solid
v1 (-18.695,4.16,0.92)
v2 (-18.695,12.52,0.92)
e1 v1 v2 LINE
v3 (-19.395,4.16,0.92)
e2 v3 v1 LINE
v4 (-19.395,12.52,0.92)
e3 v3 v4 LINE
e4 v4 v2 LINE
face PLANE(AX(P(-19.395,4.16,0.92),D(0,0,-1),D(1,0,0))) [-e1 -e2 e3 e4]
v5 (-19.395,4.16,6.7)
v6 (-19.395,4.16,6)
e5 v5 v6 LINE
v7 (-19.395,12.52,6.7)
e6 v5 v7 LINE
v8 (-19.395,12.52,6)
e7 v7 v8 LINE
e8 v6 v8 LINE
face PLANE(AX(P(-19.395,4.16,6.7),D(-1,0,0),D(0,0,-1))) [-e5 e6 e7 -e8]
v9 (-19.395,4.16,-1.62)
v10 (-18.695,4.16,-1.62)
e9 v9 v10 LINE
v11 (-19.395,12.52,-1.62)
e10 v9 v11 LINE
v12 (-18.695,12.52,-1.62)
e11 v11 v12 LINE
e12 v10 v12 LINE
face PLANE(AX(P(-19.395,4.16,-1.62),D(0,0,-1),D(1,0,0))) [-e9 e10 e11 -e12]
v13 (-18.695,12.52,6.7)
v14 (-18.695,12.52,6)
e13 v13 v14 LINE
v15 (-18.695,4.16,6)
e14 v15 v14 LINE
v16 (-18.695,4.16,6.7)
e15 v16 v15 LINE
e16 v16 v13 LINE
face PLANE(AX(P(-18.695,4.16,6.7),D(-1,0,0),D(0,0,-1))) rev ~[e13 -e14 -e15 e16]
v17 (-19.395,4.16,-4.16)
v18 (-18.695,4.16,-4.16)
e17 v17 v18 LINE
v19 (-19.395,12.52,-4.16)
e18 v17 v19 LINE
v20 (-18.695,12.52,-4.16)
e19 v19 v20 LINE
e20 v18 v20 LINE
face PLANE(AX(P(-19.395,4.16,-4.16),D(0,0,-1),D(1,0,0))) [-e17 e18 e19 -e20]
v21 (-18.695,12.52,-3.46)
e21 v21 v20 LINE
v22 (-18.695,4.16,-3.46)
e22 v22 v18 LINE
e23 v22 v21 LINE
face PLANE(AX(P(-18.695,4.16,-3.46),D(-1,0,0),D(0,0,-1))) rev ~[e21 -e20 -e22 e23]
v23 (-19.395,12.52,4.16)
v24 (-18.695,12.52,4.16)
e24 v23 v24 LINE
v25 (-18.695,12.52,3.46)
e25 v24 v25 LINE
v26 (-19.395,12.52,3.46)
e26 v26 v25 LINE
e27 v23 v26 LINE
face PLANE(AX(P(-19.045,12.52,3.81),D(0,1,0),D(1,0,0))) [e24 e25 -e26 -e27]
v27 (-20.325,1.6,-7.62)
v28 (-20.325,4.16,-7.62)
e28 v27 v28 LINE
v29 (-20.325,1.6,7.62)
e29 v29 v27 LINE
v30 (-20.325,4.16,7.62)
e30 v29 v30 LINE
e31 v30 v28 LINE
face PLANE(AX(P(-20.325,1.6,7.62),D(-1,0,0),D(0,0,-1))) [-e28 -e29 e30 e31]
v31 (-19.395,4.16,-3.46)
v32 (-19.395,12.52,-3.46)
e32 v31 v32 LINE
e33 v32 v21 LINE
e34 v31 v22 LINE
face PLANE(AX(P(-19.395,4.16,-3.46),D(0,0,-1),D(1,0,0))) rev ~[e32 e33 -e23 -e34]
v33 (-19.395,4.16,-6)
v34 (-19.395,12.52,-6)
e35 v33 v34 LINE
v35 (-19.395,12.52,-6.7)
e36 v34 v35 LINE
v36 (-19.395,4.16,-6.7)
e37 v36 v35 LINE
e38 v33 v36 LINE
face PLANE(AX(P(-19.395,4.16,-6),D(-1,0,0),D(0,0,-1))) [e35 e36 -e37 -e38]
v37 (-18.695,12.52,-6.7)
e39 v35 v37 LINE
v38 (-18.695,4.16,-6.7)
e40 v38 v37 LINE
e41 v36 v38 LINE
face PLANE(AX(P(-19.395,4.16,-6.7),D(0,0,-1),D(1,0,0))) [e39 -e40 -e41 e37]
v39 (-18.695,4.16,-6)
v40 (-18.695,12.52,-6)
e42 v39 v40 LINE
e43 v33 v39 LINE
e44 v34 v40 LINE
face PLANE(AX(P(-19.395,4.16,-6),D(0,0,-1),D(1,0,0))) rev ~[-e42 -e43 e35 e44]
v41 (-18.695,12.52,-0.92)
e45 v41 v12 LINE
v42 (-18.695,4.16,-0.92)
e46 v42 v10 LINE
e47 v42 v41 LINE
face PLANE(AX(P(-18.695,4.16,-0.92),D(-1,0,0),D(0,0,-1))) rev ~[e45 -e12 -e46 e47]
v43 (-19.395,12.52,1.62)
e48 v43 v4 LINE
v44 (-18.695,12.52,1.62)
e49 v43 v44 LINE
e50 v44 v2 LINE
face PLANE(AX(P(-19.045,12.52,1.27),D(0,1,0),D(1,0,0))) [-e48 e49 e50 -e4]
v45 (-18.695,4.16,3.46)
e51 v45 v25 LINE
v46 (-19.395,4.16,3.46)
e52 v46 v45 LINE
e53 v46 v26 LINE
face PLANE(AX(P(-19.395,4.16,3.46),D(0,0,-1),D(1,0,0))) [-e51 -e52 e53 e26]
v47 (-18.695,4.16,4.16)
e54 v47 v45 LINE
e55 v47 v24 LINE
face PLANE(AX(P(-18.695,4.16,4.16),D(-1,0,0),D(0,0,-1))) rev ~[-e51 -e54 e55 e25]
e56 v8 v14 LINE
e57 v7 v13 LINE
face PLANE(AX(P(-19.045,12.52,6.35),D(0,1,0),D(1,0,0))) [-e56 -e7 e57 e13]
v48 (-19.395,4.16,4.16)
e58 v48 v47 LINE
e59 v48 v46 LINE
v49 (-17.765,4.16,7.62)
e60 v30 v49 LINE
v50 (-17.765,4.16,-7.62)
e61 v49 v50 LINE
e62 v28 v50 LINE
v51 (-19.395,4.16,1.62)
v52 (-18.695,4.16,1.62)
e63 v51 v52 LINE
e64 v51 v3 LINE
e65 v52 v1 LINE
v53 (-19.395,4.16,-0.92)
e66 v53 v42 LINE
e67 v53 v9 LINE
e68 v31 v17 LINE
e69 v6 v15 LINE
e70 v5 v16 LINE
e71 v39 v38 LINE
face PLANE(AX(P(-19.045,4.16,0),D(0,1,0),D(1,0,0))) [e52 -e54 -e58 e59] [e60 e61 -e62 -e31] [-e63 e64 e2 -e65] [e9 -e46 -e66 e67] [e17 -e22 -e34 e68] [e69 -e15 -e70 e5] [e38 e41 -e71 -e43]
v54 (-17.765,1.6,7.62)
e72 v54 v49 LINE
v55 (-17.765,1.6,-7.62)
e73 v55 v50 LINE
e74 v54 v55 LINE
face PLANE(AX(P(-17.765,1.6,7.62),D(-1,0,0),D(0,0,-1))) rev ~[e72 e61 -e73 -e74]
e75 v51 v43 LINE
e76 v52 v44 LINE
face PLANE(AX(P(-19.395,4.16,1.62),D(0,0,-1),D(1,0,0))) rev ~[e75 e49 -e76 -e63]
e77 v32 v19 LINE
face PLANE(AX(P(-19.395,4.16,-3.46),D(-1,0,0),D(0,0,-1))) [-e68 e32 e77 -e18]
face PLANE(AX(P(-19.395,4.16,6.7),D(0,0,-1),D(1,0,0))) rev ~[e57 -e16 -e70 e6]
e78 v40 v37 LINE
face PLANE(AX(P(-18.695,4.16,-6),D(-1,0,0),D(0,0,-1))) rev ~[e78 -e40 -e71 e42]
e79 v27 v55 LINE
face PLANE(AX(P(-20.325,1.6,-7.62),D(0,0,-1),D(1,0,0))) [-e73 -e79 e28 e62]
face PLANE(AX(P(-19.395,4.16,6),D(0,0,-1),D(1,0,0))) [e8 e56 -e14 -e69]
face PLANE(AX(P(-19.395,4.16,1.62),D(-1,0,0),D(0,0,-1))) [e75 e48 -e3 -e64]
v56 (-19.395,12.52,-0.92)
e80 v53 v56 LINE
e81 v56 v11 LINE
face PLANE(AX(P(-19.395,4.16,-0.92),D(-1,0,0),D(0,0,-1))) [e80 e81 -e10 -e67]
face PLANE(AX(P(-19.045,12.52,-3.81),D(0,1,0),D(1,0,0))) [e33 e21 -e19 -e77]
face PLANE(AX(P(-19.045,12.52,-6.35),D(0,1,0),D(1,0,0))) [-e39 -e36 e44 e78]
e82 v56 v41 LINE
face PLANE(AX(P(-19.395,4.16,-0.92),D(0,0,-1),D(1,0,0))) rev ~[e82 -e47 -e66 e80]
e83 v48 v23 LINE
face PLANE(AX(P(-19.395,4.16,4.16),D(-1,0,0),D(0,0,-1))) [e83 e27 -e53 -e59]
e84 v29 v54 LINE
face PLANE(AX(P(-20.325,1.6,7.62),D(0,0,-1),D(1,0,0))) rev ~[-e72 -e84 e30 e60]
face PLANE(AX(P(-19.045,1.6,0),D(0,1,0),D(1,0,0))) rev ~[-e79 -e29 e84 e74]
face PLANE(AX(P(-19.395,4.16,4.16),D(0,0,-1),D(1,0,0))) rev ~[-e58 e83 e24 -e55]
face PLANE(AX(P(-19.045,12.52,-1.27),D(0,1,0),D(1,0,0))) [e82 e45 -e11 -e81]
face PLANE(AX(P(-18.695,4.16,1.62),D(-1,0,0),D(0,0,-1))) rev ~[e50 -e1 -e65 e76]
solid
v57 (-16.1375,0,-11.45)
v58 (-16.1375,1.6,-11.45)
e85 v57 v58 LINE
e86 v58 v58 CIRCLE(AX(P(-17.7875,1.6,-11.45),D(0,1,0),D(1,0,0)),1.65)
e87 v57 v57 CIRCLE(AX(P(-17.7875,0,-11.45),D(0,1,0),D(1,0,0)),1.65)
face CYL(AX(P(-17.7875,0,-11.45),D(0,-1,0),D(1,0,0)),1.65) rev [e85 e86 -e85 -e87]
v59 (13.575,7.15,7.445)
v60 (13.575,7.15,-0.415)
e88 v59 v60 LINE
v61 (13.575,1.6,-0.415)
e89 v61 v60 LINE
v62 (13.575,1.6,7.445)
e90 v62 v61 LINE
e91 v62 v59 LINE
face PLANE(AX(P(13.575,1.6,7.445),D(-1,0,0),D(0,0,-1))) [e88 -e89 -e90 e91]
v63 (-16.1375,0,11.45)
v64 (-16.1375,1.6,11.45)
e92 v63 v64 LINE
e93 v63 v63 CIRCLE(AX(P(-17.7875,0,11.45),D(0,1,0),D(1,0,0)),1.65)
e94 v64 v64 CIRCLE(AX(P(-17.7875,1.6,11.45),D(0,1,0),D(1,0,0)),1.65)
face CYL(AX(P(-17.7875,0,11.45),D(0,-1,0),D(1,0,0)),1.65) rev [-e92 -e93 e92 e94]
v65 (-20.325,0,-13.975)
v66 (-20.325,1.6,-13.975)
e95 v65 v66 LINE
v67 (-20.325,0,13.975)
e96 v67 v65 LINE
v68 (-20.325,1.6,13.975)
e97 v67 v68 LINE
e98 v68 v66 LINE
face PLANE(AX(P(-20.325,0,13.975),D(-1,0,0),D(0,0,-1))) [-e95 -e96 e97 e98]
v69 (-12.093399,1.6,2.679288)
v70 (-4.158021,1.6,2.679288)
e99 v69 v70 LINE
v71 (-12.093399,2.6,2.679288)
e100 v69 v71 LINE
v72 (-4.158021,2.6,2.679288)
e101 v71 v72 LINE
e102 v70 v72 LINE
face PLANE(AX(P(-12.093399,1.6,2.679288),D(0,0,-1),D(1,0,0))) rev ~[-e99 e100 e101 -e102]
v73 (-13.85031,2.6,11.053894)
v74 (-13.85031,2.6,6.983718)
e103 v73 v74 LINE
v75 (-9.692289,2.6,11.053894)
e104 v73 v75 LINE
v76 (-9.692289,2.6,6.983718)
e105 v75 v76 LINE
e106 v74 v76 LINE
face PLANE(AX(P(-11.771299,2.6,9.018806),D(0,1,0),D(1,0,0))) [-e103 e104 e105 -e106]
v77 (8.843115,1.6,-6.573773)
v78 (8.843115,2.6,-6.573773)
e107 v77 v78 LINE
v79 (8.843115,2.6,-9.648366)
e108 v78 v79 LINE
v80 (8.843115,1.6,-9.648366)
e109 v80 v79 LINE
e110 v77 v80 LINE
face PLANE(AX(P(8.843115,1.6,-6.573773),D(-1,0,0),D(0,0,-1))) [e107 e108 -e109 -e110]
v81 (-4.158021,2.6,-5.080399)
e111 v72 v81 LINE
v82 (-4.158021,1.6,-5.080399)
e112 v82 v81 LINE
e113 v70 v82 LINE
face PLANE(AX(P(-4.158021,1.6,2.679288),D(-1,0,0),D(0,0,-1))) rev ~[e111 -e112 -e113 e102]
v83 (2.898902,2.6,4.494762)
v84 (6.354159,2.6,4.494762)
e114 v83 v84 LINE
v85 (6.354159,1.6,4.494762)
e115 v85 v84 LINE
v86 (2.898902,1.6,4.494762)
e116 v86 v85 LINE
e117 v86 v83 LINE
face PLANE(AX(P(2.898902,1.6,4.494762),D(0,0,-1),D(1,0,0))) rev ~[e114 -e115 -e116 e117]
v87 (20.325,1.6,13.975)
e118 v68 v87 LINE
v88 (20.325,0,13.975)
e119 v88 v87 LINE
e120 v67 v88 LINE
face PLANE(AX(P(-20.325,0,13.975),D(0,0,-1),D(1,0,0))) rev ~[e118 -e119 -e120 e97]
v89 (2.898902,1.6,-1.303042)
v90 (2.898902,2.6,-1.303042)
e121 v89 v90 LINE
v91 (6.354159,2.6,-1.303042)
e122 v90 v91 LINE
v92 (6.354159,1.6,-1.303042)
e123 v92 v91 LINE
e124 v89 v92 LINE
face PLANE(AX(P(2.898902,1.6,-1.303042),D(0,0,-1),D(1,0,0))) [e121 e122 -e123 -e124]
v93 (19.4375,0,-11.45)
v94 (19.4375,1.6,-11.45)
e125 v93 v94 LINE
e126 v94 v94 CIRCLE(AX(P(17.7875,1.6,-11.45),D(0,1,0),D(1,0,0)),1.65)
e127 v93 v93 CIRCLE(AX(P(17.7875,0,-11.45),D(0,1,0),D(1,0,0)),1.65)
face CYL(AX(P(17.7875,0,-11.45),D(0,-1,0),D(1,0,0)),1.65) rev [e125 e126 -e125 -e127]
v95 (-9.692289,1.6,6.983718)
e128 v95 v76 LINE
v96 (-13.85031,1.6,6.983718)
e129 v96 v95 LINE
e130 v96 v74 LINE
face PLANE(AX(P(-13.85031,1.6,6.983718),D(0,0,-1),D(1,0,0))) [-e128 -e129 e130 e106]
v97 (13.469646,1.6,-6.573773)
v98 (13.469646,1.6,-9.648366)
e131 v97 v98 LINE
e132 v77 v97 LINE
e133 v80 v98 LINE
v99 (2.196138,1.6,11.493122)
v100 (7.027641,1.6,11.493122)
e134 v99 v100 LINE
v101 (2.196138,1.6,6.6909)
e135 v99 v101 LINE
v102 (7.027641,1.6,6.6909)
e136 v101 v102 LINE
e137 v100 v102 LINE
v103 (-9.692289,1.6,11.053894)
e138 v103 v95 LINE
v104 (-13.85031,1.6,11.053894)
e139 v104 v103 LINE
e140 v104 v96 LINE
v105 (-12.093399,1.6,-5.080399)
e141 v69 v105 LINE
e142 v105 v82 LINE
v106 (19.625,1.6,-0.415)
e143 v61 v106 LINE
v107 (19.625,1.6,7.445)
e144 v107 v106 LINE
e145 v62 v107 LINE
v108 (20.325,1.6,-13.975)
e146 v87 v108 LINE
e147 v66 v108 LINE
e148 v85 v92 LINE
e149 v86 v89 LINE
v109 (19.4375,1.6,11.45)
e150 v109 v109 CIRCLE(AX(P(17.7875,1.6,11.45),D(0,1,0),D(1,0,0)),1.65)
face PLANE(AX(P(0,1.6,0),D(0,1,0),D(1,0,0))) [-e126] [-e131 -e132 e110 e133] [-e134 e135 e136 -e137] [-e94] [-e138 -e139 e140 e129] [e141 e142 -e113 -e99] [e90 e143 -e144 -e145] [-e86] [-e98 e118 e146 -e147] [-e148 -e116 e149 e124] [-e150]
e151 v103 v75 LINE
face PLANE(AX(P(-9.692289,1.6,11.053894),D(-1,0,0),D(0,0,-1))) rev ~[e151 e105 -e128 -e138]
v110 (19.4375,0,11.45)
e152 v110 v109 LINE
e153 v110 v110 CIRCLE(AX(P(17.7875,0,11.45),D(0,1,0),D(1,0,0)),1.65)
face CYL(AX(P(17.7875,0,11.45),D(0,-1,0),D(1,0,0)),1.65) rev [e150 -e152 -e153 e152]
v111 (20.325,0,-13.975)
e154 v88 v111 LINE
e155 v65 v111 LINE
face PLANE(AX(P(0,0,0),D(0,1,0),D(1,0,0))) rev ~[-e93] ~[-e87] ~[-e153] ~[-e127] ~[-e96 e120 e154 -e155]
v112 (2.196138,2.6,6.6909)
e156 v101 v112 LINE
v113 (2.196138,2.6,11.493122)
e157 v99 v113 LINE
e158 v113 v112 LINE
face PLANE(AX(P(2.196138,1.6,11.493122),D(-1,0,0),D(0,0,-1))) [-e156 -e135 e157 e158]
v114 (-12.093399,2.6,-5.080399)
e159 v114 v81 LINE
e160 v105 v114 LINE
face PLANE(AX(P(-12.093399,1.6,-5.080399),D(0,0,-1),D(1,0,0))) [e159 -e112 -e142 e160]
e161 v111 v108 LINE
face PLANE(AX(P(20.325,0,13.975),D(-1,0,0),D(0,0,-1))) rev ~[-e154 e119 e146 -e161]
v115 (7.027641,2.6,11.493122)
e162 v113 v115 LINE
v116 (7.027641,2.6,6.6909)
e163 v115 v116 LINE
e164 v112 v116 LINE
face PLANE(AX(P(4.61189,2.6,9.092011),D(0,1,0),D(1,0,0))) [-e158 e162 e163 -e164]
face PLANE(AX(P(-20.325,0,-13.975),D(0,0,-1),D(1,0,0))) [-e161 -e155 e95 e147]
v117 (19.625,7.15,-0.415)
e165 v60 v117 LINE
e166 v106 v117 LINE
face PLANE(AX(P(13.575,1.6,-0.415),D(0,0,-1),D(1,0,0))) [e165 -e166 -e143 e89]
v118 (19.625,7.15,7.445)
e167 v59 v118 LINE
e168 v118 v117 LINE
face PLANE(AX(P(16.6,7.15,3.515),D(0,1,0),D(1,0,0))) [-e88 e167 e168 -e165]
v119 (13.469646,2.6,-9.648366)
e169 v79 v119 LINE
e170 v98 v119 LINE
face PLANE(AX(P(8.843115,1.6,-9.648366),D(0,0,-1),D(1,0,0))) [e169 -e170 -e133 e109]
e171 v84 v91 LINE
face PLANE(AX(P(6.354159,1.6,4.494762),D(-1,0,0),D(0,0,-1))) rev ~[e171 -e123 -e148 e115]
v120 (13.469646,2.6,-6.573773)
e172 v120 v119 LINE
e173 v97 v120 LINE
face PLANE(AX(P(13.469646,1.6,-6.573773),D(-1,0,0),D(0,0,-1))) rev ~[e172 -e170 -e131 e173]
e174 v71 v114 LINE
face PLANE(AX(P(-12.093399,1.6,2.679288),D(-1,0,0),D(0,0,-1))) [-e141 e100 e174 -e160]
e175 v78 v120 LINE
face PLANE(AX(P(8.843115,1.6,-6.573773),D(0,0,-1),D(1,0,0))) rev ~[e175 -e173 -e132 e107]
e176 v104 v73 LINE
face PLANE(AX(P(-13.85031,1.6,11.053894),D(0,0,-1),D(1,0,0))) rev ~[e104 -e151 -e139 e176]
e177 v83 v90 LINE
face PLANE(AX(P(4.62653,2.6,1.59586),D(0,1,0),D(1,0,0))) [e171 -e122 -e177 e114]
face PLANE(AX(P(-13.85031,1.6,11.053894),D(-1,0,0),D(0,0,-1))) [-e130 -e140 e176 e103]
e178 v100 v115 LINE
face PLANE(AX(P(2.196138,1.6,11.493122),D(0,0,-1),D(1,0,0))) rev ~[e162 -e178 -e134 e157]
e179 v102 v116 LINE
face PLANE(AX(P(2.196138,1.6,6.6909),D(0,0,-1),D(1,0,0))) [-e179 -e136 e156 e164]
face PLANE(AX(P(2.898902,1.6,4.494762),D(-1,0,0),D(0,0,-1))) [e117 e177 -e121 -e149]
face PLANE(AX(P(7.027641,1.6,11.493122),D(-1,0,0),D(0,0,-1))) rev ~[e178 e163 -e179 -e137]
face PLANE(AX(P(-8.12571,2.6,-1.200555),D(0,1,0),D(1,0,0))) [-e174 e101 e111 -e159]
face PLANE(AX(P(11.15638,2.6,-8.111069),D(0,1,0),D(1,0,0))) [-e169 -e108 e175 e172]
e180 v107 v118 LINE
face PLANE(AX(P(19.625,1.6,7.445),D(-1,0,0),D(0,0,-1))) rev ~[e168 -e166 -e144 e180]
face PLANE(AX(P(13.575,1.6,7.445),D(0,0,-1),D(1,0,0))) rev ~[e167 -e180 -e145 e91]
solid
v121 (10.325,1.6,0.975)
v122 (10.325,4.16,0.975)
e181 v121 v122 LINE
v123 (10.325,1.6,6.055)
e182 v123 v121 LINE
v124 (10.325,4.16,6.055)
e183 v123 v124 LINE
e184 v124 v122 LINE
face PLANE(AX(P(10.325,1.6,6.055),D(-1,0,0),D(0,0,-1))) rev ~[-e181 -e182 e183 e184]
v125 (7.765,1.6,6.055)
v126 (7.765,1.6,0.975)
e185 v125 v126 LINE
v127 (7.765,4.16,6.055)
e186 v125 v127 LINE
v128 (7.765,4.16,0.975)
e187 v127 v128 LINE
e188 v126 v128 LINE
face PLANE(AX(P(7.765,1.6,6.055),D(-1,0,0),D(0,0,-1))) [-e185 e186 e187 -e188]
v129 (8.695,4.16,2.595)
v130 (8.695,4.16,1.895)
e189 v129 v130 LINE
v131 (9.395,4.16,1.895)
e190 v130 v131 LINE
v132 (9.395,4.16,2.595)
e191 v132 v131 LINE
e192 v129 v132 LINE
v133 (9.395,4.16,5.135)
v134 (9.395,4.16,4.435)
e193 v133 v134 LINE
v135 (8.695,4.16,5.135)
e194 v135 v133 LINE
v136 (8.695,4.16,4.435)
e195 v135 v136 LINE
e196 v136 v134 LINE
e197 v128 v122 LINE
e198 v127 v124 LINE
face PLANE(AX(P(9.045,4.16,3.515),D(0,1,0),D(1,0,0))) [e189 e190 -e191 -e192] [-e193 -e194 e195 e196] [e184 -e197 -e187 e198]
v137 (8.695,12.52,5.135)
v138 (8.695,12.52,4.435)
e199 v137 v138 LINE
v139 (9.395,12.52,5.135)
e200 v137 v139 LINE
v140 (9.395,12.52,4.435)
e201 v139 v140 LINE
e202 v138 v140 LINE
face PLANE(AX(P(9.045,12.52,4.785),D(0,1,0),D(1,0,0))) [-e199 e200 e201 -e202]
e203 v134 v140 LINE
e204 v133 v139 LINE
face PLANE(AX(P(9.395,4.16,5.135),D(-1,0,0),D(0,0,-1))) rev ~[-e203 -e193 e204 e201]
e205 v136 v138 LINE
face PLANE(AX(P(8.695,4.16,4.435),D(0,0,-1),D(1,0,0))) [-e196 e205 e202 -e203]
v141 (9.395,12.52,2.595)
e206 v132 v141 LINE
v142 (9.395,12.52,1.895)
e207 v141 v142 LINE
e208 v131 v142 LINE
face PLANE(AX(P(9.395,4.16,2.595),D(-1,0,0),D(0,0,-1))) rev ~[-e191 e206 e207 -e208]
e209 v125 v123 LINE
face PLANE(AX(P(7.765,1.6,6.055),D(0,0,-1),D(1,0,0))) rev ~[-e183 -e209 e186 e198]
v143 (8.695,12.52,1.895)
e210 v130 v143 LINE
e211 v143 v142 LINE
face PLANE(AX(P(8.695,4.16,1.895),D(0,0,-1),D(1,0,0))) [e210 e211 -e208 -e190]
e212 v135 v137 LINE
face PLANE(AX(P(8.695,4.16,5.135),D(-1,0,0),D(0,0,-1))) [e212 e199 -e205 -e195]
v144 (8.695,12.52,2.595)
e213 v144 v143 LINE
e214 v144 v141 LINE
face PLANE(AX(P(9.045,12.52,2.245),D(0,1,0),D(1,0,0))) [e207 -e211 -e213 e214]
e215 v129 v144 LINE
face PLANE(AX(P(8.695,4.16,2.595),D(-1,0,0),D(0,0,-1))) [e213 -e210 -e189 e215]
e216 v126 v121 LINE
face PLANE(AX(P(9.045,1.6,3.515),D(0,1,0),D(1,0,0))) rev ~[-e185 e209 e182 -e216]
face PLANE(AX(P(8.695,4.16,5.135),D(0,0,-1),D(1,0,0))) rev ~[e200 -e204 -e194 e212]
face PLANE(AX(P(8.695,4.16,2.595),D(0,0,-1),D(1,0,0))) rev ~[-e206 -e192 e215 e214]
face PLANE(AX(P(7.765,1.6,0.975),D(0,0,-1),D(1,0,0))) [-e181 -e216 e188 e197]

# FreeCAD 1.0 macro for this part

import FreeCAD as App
import Part
import Sketcher

doc = App.newDocument("Part")
body = doc.addObject("PartDesign::Body", "Body")

sketch1 = body.newObject("Sketcher::SketchObject", "Sketch")
sketch1.AttachmentSupport = (doc.getObject("XZ_Plane"), [""])
sketch1.MapMode = "FlatFace"
sketch1.addGeometry(Part.LineSegment(App.Vector(-20.3, -14, 0), App.Vector(-20.3, 14, 0)), False)
sketch1.addGeometry(Part.LineSegment(App.Vector(-20.3, 14, 0), App.Vector(20.3, 14, 0)), False)
sketch1.addGeometry(Part.LineSegment(App.Vector(20.3, 14, 0), App.Vector(20.3, -14, 0)), False)
sketch1.addGeometry(Part.LineSegment(App.Vector(20.3, -14, 0), App.Vector(-20.3, -14, 0)), False)
sketch1.addGeometry(Part.Circle(App.Vector(-17.8, 11.4, 0), App.Vector(0, 0, 1), 1.6), False)
sketch1.addGeometry(Part.Circle(App.Vector(17.8, 11.4, 0), App.Vector(0, 0, 1), 1.6), False)
sketch1.addGeometry(Part.Circle(App.Vector(-17.8, -11.4, 0), App.Vector(0, 0, 1), 1.6), False)
sketch1.addGeometry(Part.Circle(App.Vector(17.8, -11.4, 0), App.Vector(0, 0, 1), 1.6), False)
sketch1.addConstraint(Sketcher.Constraint("Coincident", 0, 2, 1, 1))
sketch1.addConstraint(Sketcher.Constraint("Coincident", 1, 2, 2, 1))
sketch1.addConstraint(Sketcher.Constraint("Coincident", 2, 2, 3, 1))
sketch1.addConstraint(Sketcher.Constraint("Coincident", 3, 2, 0, 1))
sketch1.addConstraint(Sketcher.Constraint("Vertical", 0))
sketch1.addConstraint(Sketcher.Constraint("Horizontal", 1))
sketch1.addConstraint(Sketcher.Constraint("Vertical", 2))
sketch1.addConstraint(Sketcher.Constraint("Horizontal", 3))
sketch1.addConstraint(Sketcher.Constraint("Equal", 4, 5))
sketch1.addConstraint(Sketcher.Constraint("Equal", 5, 6))
sketch1.addConstraint(Sketcher.Constraint("Equal", 6, 7))
sketch1.addConstraint(Sketcher.Constraint("Symmetric", 5, 3, 6, 3, -1, 1))
sketch1.addConstraint(Sketcher.Constraint("Symmetric", 4, 3, 7, 3, -1, 1))
sketch1.addConstraint(Sketcher.Constraint("Symmetric", 0, 2, 2, 2, -1, 1))
sketch1.addConstraint(Sketcher.Constraint("Symmetric", 4, 3, 5, 3, -2))
sketch1.addConstraint(Sketcher.Constraint("Diameter", 4, 3.3))
sketch1.addConstraint(Sketcher.Constraint("DistanceX", 1, 1, 1, 2, 40.65))
sketch1.addConstraint(Sketcher.Constraint("DistanceY", 0, 1, 0, 2, 27.95))
sketch1.addConstraint(Sketcher.Constraint("DistanceY", 6, 3, 4, 3, 22.9))
sketch1.addConstraint(Sketcher.Constraint("DistanceX", 4, 3, 5, 3, 35.575))
pad1 = body.newObject("PartDesign::Pad", "Pad")
pad1.Profile = sketch1
pad1.Length = 1.6
pad1.Reversed = True

sketch2 = body.newObject("Sketcher::SketchObject", "Sketch001")
sketch2.AttachmentSupport = (doc.getObject("XZ_Plane"), [""])
sketch2.MapMode = "FlatFace"
sketch2.AttachmentOffset = App.Placement(App.Vector(0, 0, -1.6), App.Rotation())
sketch2.addGeometry(Part.LineSegment(App.Vector(-12.1, -5.1, 0), App.Vector(-12.1, 2.7, 0)), False)
sketch2.addGeometry(Part.LineSegment(App.Vector(-12.1, 2.7, 0), App.Vector(-4.2, 2.7, 0)), False)
sketch2.addGeometry(Part.LineSegment(App.Vector(-4.2, 2.7, 0), App.Vector(-4.2, -5.1, 0)), False)
sketch2.addGeometry(Part.LineSegment(App.Vector(-4.2, -5.1, 0), App.Vector(-12.1, -5.1, 0)), False)
sketch2.addGeometry(Part.LineSegment(App.Vector(-13.9, 7, 0), App.Vector(-13.9, 11.1, 0)), False)
sketch2.addGeometry(Part.LineSegment(App.Vector(-13.9, 11.1, 0), App.Vector(-9.7, 11.1, 0)), False)
sketch2.addGeometry(Part.LineSegment(App.Vector(-9.7, 11.1, 0), App.Vector(-9.7, 7, 0)), False)
sketch2.addGeometry(Part.LineSegment(App.Vector(-9.7, 7, 0), App.Vector(-13.9, 7, 0)), False)
sketch2.addGeometry(Part.LineSegment(App.Vector(2.2, 6.7, 0), App.Vector(2.2, 11.5, 0)), False)
sketch2.addGeometry(Part.LineSegment(App.Vector(2.2, 11.5, 0), App.Vector(7, 11.5, 0)), False)
sketch2.addGeometry(Part.LineSegment(App.Vector(7, 11.5, 0), App.Vector(7, 6.7, 0)), False)
sketch2.addGeometry(Part.LineSegment(App.Vector(7, 6.7, 0), App.Vector(2.2, 6.7, 0)), False)
sketch2.addGeometry(Part.LineSegment(App.Vector(2.9, -1.3, 0), App.Vector(2.9, 4.5, 0)), False)
sketch2.addGeometry(Part.LineSegment(App.Vector(2.9, 4.5, 0), App.Vector(6.4, 4.5, 0)), False)
sketch2.addGeometry(Part.LineSegment(App.Vector(6.4, 4.5, 0), App.Vector(6.4, -1.3, 0)), False)
sketch2.addGeometry(Part.LineSegment(App.Vector(6.4, -1.3, 0), App.Vector(2.9, -1.3, 0)), False)
sketch2.addGeometry(Part.LineSegment(App.Vector(8.8, -9.6, 0), App.Vector(8.8, -6.6, 0)), False)
sketch2.addGeometry(Part.LineSegment(App.Vector(8.8, -6.6, 0), App.Vector(13.5, -6.6, 0)), False)
sketch2.addGeometry(Part.LineSegment(App.Vector(13.5, -6.6, 0), App.Vector(13.5, -9.6, 0)), False)
sketch2.addGeometry(Part.LineSegment(App.Vector(13.5, -9.6, 0), App.Vector(8.8, -9.6, 0)), False)
sketch2.addConstraint(Sketcher.Constraint("Coincident", 0, 2, 1, 1))
sketch2.addConstraint(Sketcher.Constraint("Coincident", 1, 2, 2, 1))
sketch2.addConstraint(Sketcher.Constraint("Coincident", 2, 2, 3, 1))
sketch2.addConstraint(Sketcher.Constraint("Coincident", 3, 2, 0, 1))
sketch2.addConstraint(Sketcher.Constraint("Coincident", 4, 2, 5, 1))
sketch2.addConstraint(Sketcher.Constraint("Coincident", 5, 2, 6, 1))
sketch2.addConstraint(Sketcher.Constraint("Coincident", 6, 2, 7, 1))
sketch2.addConstraint(Sketcher.Constraint("Coincident", 7, 2, 4, 1))
sketch2.addConstraint(Sketcher.Constraint("Coincident", 8, 2, 9, 1))
sketch2.addConstraint(Sketcher.Constraint("Coincident", 9, 2, 10, 1))
sketch2.addConstraint(Sketcher.Constraint("Coincident", 10, 2, 11, 1))
sketch2.addConstraint(Sketcher.Constraint("Coincident", 11, 2, 8, 1))
sketch2.addConstraint(Sketcher.Constraint("Coincident", 12, 2, 13, 1))
sketch2.addConstraint(Sketcher.Constraint("Coincident", 13, 2, 14, 1))
sketch2.addConstraint(Sketcher.Constraint("Coincident", 14, 2, 15, 1))
sketch2.addConstraint(Sketcher.Constraint("Coincident", 15, 2, 12, 1))
sketch2.addConstraint(Sketcher.Constraint("Coincident", 16, 2, 17, 1))
sketch2.addConstraint(Sketcher.Constraint("Coincident", 17, 2, 18, 1))
sketch2.addConstraint(Sketcher.Constraint("Coincident", 18, 2, 19, 1))
sketch2.addConstraint(Sketcher.Constraint("Coincident", 19, 2, 16, 1))
sketch2.addConstraint(Sketcher.Constraint("Vertical", 0))
sketch2.addConstraint(Sketcher.Constraint("Horizontal", 1))
sketch2.addConstraint(Sketcher.Constraint("Vertical", 2))
sketch2.addConstraint(Sketcher.Constraint("Horizontal", 3))
sketch2.addConstraint(Sketcher.Constraint("Vertical", 4))
sketch2.addConstraint(Sketcher.Constraint("Horizontal", 5))
sketch2.addConstraint(Sketcher.Constraint("Vertical", 6))
sketch2.addConstraint(Sketcher.Constraint("Horizontal", 7))
sketch2.addConstraint(Sketcher.Constraint("Vertical", 8))
sketch2.addConstraint(Sketcher.Constraint("Horizontal", 9))
sketch2.addConstraint(Sketcher.Constraint("Vertical", 10))
sketch2.addConstraint(Sketcher.Constraint("Horizontal", 11))
sketch2.addConstraint(Sketcher.Constraint("Vertical", 12))
sketch2.addConstraint(Sketcher.Constraint("Horizontal", 13))
sketch2.addConstraint(Sketcher.Constraint("Vertical", 14))
sketch2.addConstraint(Sketcher.Constraint("Horizontal", 15))
sketch2.addConstraint(Sketcher.Constraint("Vertical", 16))
sketch2.addConstraint(Sketcher.Constraint("Horizontal", 17))
sketch2.addConstraint(Sketcher.Constraint("Vertical", 18))
sketch2.addConstraint(Sketcher.Constraint("Horizontal", 19))
sketch2.addConstraint(Sketcher.Constraint("DistanceX", 1, 1, 1, 2, 7.935378))
sketch2.addConstraint(Sketcher.Constraint("DistanceX", 5, 1, 5, 2, 4.158021))
sketch2.addConstraint(Sketcher.Constraint("DistanceX", 17, 1, 17, 2, 4.62653))
sketch2.addConstraint(Sketcher.Constraint("DistanceY", 8, 1, 8, 2, 4.802222))
sketch2.addConstraint(Sketcher.Constraint("DistanceX", 0, 2, -1, 1, 12.093399))
sketch2.addConstraint(Sketcher.Constraint("DistanceY", 2, 2, -1, 1, 5.080399))
sketch2.addConstraint(Sketcher.Constraint("DistanceY", -1, 1, 10, 2, 6.6909))
sketch2.addConstraint(Sketcher.Constraint("DistanceX", 9, 1, 9, 2, 4.831503))
sketch2.addConstraint(Sketcher.Constraint("DistanceX", 13, 1, 13, 2, 3.455257))
sketch2.addConstraint(Sketcher.Constraint("DistanceY", 0, 1, 0, 2, 7.759687))
sketch2.addConstraint(Sketcher.Constraint("DistanceY", 4, 1, 4, 2, 4.070176))
sketch2.addConstraint(Sketcher.Constraint("DistanceY", 12, 1, 12, 2, 5.797804))
sketch2.addConstraint(Sketcher.Constraint("DistanceY", 16, 1, 16, 2, 3.074593))
sketch2.addConstraint(Sketcher.Constraint("DistanceX", 4, 2, -1, 1, 13.85031))
sketch2.addConstraint(Sketcher.Constraint("DistanceY", -1, 1, 6, 2, 6.983718))
sketch2.addConstraint(Sketcher.Constraint("DistanceX", -1, 1, 9, 2, 7.027641))
sketch2.addConstraint(Sketcher.Constraint("DistanceX", -1, 1, 13, 2, 6.354159))
sketch2.addConstraint(Sketcher.Constraint("DistanceY", 14, 2, -1, 1, 1.303042))
sketch2.addConstraint(Sketcher.Constraint("DistanceY", 16, 2, 14, 2, 5.270731))
sketch2.addConstraint(Sketcher.Constraint("DistanceX", -1, 1, 16, 2, 8.843115))
pad2 = body.newObject("PartDesign::Pad", "Pad001")
pad2.Profile = sketch2
pad2.Length = 1
pad2.Reversed = True

sketch3 = body.newObject("Sketcher::SketchObject", "Sketch002")
sketch3.AttachmentSupport = (doc.getObject("XZ_Plane"), [""])
sketch3.MapMode = "FlatFace"
sketch3.AttachmentOffset = App.Placement(App.Vector(0, 0, -1.6), App.Rotation())
sketch3.addGeometry(Part.LineSegment(App.Vector(14, 0, 0), App.Vector(14, 7, 0)), False)
sketch3.addGeometry(Part.LineSegment(App.Vector(14, 7, 0), App.Vector(20, 7, 0)), False)
sketch3.addGeometry(Part.LineSegment(App.Vector(20, 7, 0), App.Vector(20, 0, 0)), False)
sketch3.addGeometry(Part.LineSegment(App.Vector(20, 0, 0), App.Vector(14, 0, 0)), False)
sketch3.addConstraint(Sketcher.Constraint("Coincident", 0, 2, 1, 1))
sketch3.addConstraint(Sketcher.Constraint("Coincident", 1, 2, 2, 1))
sketch3.addConstraint(Sketcher.Constraint("Coincident", 2, 2, 3, 1))
sketch3.addConstraint(Sketcher.Constraint("Coincident", 3, 2, 0, 1))
sketch3.addConstraint(Sketcher.Constraint("Vertical", 0))
sketch3.addConstraint(Sketcher.Constraint("Horizontal", 1))
sketch3.addConstraint(Sketcher.Constraint("Vertical", 2))
sketch3.addConstraint(Sketcher.Constraint("Horizontal", 3))
sketch3.addConstraint(Sketcher.Constraint("DistanceX", 1, 1, 1, 2, 6.05))
sketch3.addConstraint(Sketcher.Constraint("DistanceY", 0, 1, 0, 2, 7.86))
sketch3.addConstraint(Sketcher.Constraint("DistanceX", -1, 1, 0, 2, 13.575))
sketch3.addConstraint(Sketcher.Constraint("DistanceY", -1, 1, 0, 2, 7.445))
pad3 = body.newObject("PartDesign::Pad", "Pad002")
pad3.Profile = sketch3
pad3.Length = 5.55
pad3.Reversed = True
body2 = doc.addObject("PartDesign::Body", "Body001")

sketch4 = body2.newObject("Sketcher::SketchObject", "Sketch003")
sketch4.AttachmentSupport = (doc.getObject("XZ_Plane001"), [""])
sketch4.MapMode = "FlatFace"
sketch4.AttachmentOffset = App.Placement(App.Vector(0, 0, -1.6), App.Rotation())
sketch4.addGeometry(Part.LineSegment(App.Vector(-20.3, -7.6, 0), App.Vector(-20.3, 7.6, 0)), False)
sketch4.addGeometry(Part.LineSegment(App.Vector(-20.3, 7.6, 0), App.Vector(-17.8, 7.6, 0)), False)
sketch4.addGeometry(Part.LineSegment(App.Vector(-17.8, 7.6, 0), App.Vector(-17.8, -7.6, 0)), False)
sketch4.addGeometry(Part.LineSegment(App.Vector(-17.8, -7.6, 0), App.Vector(-20.3, -7.6, 0)), False)
sketch4.addConstraint(Sketcher.Constraint("Coincident", 0, 2, 1, 1))
sketch4.addConstraint(Sketcher.Constraint("Coincident", 1, 2, 2, 1))
sketch4.addConstraint(Sketcher.Constraint("Coincident", 2, 2, 3, 1))
sketch4.addConstraint(Sketcher.Constraint("Coincident", 3, 2, 0, 1))
sketch4.addConstraint(Sketcher.Constraint("Vertical", 0))
sketch4.addConstraint(Sketcher.Constraint("Horizontal", 1))
sketch4.addConstraint(Sketcher.Constraint("Vertical", 2))
sketch4.addConstraint(Sketcher.Constraint("Horizontal", 3))
sketch4.addConstraint(Sketcher.Constraint("DistanceX", 1, 1, 1, 2, 2.56))
sketch4.addConstraint(Sketcher.Constraint("DistanceY", 0, 1, 0, 2, 15.24))
sketch4.addConstraint(Sketcher.Constraint("DistanceY", -1, 1, 0, 2, 7.62))
sketch4.addConstraint(Sketcher.Constraint("DistanceX", 0, 2, -1, 1, 20.325))
pad4 = body2.newObject("PartDesign::Pad", "Pad003")
pad4.Profile = sketch4
pad4.Length = 2.56
pad4.Reversed = True
body3 = doc.addObject("PartDesign::Body", "Body002")

sketch5 = body3.newObject("Sketcher::SketchObject", "Sketch004")
sketch5.AttachmentSupport = (doc.getObject("XZ_Plane002"), [""])
sketch5.MapMode = "FlatFace"
sketch5.AttachmentOffset = App.Placement(App.Vector(0, 0, -1.6), App.Rotation())
sketch5.addGeometry(Part.LineSegment(App.Vector(7.8, 1, 0), App.Vector(7.8, 6.1, 0)), False)
sketch5.addGeometry(Part.LineSegment(App.Vector(7.8, 6.1, 0), App.Vector(10.3, 6.1, 0)), False)
sketch5.addGeometry(Part.LineSegment(App.Vector(10.3, 6.1, 0), App.Vector(10.3, 1, 0)), False)
sketch5.addGeometry(Part.LineSegment(App.Vector(10.3, 1, 0), App.Vector(7.8, 1, 0)), False)
sketch5.addConstraint(Sketcher.Constraint("Coincident", 0, 2, 1, 1))
sketch5.addConstraint(Sketcher.Constraint("Coincident", 1, 2, 2, 1))
sketch5.addConstraint(Sketcher.Constraint("Coincident", 2, 2, 3, 1))
sketch5.addConstraint(Sketcher.Constraint("Coincident", 3, 2, 0, 1))
sketch5.addConstraint(Sketcher.Constraint("Vertical", 0))
sketch5.addConstraint(Sketcher.Constraint("Horizontal", 1))
sketch5.addConstraint(Sketcher.Constraint("Vertical", 2))
sketch5.addConstraint(Sketcher.Constraint("Horizontal", 3))
sketch5.addConstraint(Sketcher.Constraint("DistanceX", 1, 1, 1, 2, 2.56))
sketch5.addConstraint(Sketcher.Constraint("DistanceY", 0, 1, 0, 2, 5.08))
sketch5.addConstraint(Sketcher.Constraint("DistanceX", -1, 1, 0, 2, 7.765))
sketch5.addConstraint(Sketcher.Constraint("DistanceY", -1, 1, 0, 2, 6.055))
pad5 = body3.newObject("PartDesign::Pad", "Pad004")
pad5.Profile = sketch5
pad5.Length = 2.56
pad5.Reversed = True
body2.AllowCompound = True
doc.recompute()

boolean = body2.newObject("PartDesign::Boolean", "Boolean")
boolean.Type = "Fuse"
boolean.addObjects([body3])

sketch6 = body2.newObject("Sketcher::SketchObject", "Sketch005")
sketch6.AttachmentSupport = (doc.getObject("XZ_Plane001"), [""])
sketch6.MapMode = "FlatFace"
sketch6.AttachmentOffset = App.Placement(App.Vector(0, 0, -4.16), App.Rotation())
sketch6.addGeometry(Part.LineSegment(App.Vector(-19.4, -4.2, 0), App.Vector(-19.4, -3.5, 0)), False)
sketch6.addGeometry(Part.LineSegment(App.Vector(-19.4, -3.5, 0), App.Vector(-18.7, -3.5, 0)), False)
sketch6.addGeometry(Part.LineSegment(App.Vector(-18.7, -3.5, 0), App.Vector(-18.7, -4.2, 0)), False)
sketch6.addGeometry(Part.LineSegment(App.Vector(-18.7, -4.2, 0), App.Vector(-19.4, -4.2, 0)), False)
sketch6.addGeometry(Part.LineSegment(App.Vector(-19.4, -6.7, 0), App.Vector(-19.4, -6, 0)), False)
sketch6.addGeometry(Part.LineSegment(App.Vector(-19.4, -6, 0), App.Vector(-18.7, -6, 0)), False)
sketch6.addGeometry(Part.LineSegment(App.Vector(-18.7, -6, 0), App.Vector(-18.7, -6.7, 0)), False)
sketch6.addGeometry(Part.LineSegment(App.Vector(-18.7, -6.7, 0), App.Vector(-19.4, -6.7, 0)), False)
sketch6.addGeometry(Part.LineSegment(App.Vector(-19.4, -1.6, 0), App.Vector(-19.4, -0.9, 0)), False)
sketch6.addGeometry(Part.LineSegment(App.Vector(-19.4, -0.9, 0), App.Vector(-18.7, -0.9, 0)), False)
sketch6.addGeometry(Part.LineSegment(App.Vector(-18.7, -0.9, 0), App.Vector(-18.7, -1.6, 0)), False)
sketch6.addGeometry(Part.LineSegment(App.Vector(-18.7, -1.6, 0), App.Vector(-19.4, -1.6, 0)), False)
sketch6.addGeometry(Part.LineSegment(App.Vector(-19.4, 0.9, 0), App.Vector(-19.4, 1.6, 0)), False)
sketch6.addGeometry(Part.LineSegment(App.Vector(-19.4, 1.6, 0), App.Vector(-18.7, 1.6, 0)), False)
sketch6.addGeometry(Part.LineSegment(App.Vector(-18.7, 1.6, 0), App.Vector(-18.7, 0.9, 0)), False)
sketch6.addGeometry(Part.LineSegment(App.Vector(-18.7, 0.9, 0), App.Vector(-19.4, 0.9, 0)), False)
sketch6.addGeometry(Part.LineSegment(App.Vector(-19.4, 3.5, 0), App.Vector(-19.4, 4.2, 0)), False)
sketch6.addGeometry(Part.LineSegment(App.Vector(-19.4, 4.2, 0), App.Vector(-18.7, 4.2, 0)), False)
sketch6.addGeometry(Part.LineSegment(App.Vector(-18.7, 4.2, 0), App.Vector(-18.7, 3.5, 0)), False)
sketch6.addGeometry(Part.LineSegment(App.Vector(-18.7, 3.5, 0), App.Vector(-19.4, 3.5, 0)), False)
sketch6.addGeometry(Part.LineSegment(App.Vector(-19.4, 6, 0), App.Vector(-19.4, 6.7, 0)), False)
sketch6.addGeometry(Part.LineSegment(App.Vector(-19.4, 6.7, 0), App.Vector(-18.7, 6.7, 0)), False)
sketch6.addGeometry(Part.LineSegment(App.Vector(-18.7, 6.7, 0), App.Vector(-18.7, 6, 0)), False)
sketch6.addGeometry(Part.LineSegment(App.Vector(-18.7, 6, 0), App.Vector(-19.4, 6, 0)), False)
sketch6.addGeometry(Part.LineSegment(App.Vector(8.7, 1.9, 0), App.Vector(8.7, 2.6, 0)), False)
sketch6.addGeometry(Part.LineSegment(App.Vector(8.7, 2.6, 0), App.Vector(9.4, 2.6, 0)), False)
sketch6.addGeometry(Part.LineSegment(App.Vector(9.4, 2.6, 0), App.Vector(9.4, 1.9, 0)), False)
sketch6.addGeometry(Part.LineSegment(App.Vector(9.4, 1.9, 0), App.Vector(8.7, 1.9, 0)), False)
sketch6.addGeometry(Part.LineSegment(App.Vector(8.7, 4.4, 0), App.Vector(8.7, 5.1, 0)), False)
sketch6.addGeometry(Part.LineSegment(App.Vector(8.7, 5.1, 0), App.Vector(9.4, 5.1, 0)), False)
sketch6.addGeometry(Part.LineSegment(App.Vector(9.4, 5.1, 0), App.Vector(9.4, 4.4, 0)), False)
sketch6.addGeometry(Part.LineSegment(App.Vector(9.4, 4.4, 0), App.Vector(8.7, 4.4, 0)), False)
sketch6.addConstraint(Sketcher.Constraint("Coincident", 0, 2, 1, 1))
sketch6.addConstraint(Sketcher.Constraint("Coincident", 1, 2, 2, 1))
sketch6.addConstraint(Sketcher.Constraint("Coincident", 2, 2, 3, 1))
sketch6.addConstraint(Sketcher.Constraint("Coincident", 3, 2, 0, 1))
sketch6.addConstraint(Sketcher.Constraint("Coincident", 4, 2, 5, 1))
sketch6.addConstraint(Sketcher.Constraint("Coincident", 5, 2, 6, 1))
sketch6.addConstraint(Sketcher.Constraint("Coincident", 6, 2, 7, 1))
sketch6.addConstraint(Sketcher.Constraint("Coincident", 7, 2, 4, 1))
sketch6.addConstraint(Sketcher.Constraint("Coincident", 8, 2, 9, 1))
sketch6.addConstraint(Sketcher.Constraint("Coincident", 9, 2, 10, 1))
sketch6.addConstraint(Sketcher.Constraint("Coincident", 10, 2, 11, 1))
sketch6.addConstraint(Sketcher.Constraint("Coincident", 11, 2, 8, 1))
sketch6.addConstraint(Sketcher.Constraint("Coincident", 12, 2, 13, 1))
sketch6.addConstraint(Sketcher.Constraint("Coincident", 13, 2, 14, 1))
sketch6.addConstraint(Sketcher.Constraint("Coincident", 14, 2, 15, 1))
sketch6.addConstraint(Sketcher.Constraint("Coincident", 15, 2, 12, 1))
sketch6.addConstraint(Sketcher.Constraint("Coincident", 16, 2, 17, 1))
sketch6.addConstraint(Sketcher.Constraint("Coincident", 17, 2, 18, 1))
sketch6.addConstraint(Sketcher.Constraint("Coincident", 18, 2, 19, 1))
sketch6.addConstraint(Sketcher.Constraint("Coincident", 19, 2, 16, 1))
sketch6.addConstraint(Sketcher.Constraint("Coincident", 20, 2, 21, 1))
sketch6.addConstraint(Sketcher.Constraint("Coincident", 21, 2, 22, 1))
sketch6.addConstraint(Sketcher.Constraint("Coincident", 22, 2, 23, 1))
sketch6.addConstraint(Sketcher.Constraint("Coincident", 23, 2, 20, 1))
sketch6.addConstraint(Sketcher.Constraint("Coincident", 24, 2, 25, 1))
sketch6.addConstraint(Sketcher.Constraint("Coincident", 25, 2, 26, 1))
sketch6.addConstraint(Sketcher.Constraint("Coincident", 26, 2, 27, 1))
sketch6.addConstraint(Sketcher.Constraint("Coincident", 27, 2, 24, 1))
sketch6.addConstraint(Sketcher.Constraint("Coincident", 28, 2, 29, 1))
sketch6.addConstraint(Sketcher.Constraint("Coincident", 29, 2, 30, 1))
sketch6.addConstraint(Sketcher.Constraint("Coincident", 30, 2, 31, 1))
sketch6.addConstraint(Sketcher.Constraint("Coincident", 31, 2, 28, 1))
sketch6.addConstraint(Sketcher.Constraint("Vertical", 0))
sketch6.addConstraint(Sketcher.Constraint("Horizontal", 1))
sketch6.addConstraint(Sketcher.Constraint("Vertical", 2))
sketch6.addConstraint(Sketcher.Constraint("Horizontal", 3))
sketch6.addConstraint(Sketcher.Constraint("Vertical", 4))
sketch6.addConstraint(Sketcher.Constraint("Horizontal", 5))
sketch6.addConstraint(Sketcher.Constraint("Vertical", 6))
sketch6.addConstraint(Sketcher.Constraint("Horizontal", 7))
sketch6.addConstraint(Sketcher.Constraint("Vertical", 8))
sketch6.addConstraint(Sketcher.Constraint("Horizontal", 9))
sketch6.addConstraint(Sketcher.Constraint("Vertical", 10))
sketch6.addConstraint(Sketcher.Constraint("Horizontal", 11))
sketch6.addConstraint(Sketcher.Constraint("Vertical", 12))
sketch6.addConstraint(Sketcher.Constraint("Horizontal", 13))
sketch6.addConstraint(Sketcher.Constraint("Vertical", 14))
sketch6.addConstraint(Sketcher.Constraint("Horizontal", 15))
sketch6.addConstraint(Sketcher.Constraint("Vertical", 16))
sketch6.addConstraint(Sketcher.Constraint("Horizontal", 17))
sketch6.addConstraint(Sketcher.Constraint("Vertical", 18))
sketch6.addConstraint(Sketcher.Constraint("Horizontal", 19))
sketch6.addConstraint(Sketcher.Constraint("Vertical", 20))
sketch6.addConstraint(Sketcher.Constraint("Horizontal", 21))
sketch6.addConstraint(Sketcher.Constraint("Vertical", 22))
sketch6.addConstraint(Sketcher.Constraint("Horizontal", 23))
sketch6.addConstraint(Sketcher.Constraint("Vertical", 24))
sketch6.addConstraint(Sketcher.Constraint("Horizontal", 25))
sketch6.addConstraint(Sketcher.Constraint("Vertical", 26))
sketch6.addConstraint(Sketcher.Constraint("Horizontal", 27))
sketch6.addConstraint(Sketcher.Constraint("Vertical", 28))
sketch6.addConstraint(Sketcher.Constraint("Horizontal", 29))
sketch6.addConstraint(Sketcher.Constraint("Vertical", 30))
sketch6.addConstraint(Sketcher.Constraint("Horizontal", 31))
sketch6.addConstraint(Sketcher.Constraint("Symmetric", 11, 2, 12, 2, -1))
sketch6.addConstraint(Sketcher.Constraint("Symmetric", 9, 2, 14, 2, -1))
sketch6.addConstraint(Sketcher.Constraint("Symmetric", 3, 2, 16, 2, -1))
sketch6.addConstraint(Sketcher.Constraint("Symmetric", 1, 2, 18, 2, -1))
sketch6.addConstraint(Sketcher.Constraint("Symmetric", 7, 2, 20, 2, -1))
sketch6.addConstraint(Sketcher.Constraint("Symmetric", 5, 2, 22, 2, -1))
sketch6.addConstraint(Sketcher.Constraint("Vertical", 3, 2, 4, 2))
sketch6.addConstraint(Sketcher.Constraint("Vertical", 2, 2, 5, 2))
sketch6.addConstraint(Sketcher.Constraint("Vertical", 7, 2, 8, 2))
sketch6.addConstraint(Sketcher.Constraint("Vertical", 6, 2, 9, 2))
sketch6.addConstraint(Sketcher.Constraint("Vertical", 27, 2, 28, 2))
sketch6.addConstraint(Sketcher.Constraint("Vertical", 26, 2, 29, 2))
sketch6.addConstraint(Sketcher.Constraint("Equal", 23, 25))
sketch6.addConstraint(Sketcher.Constraint("Equal", 31, 0))
sketch6.addConstraint(Sketcher.Constraint("Equal", 2, 4))
sketch6.addConstraint(Sketcher.Constraint("Equal", 6, 8))
sketch6.addConstraint(Sketcher.Constraint("Equal", 22, 24))
sketch6.addConstraint(Sketcher.Constraint("Equal", 26, 28))
sketch6.addConstraint(Sketcher.Constraint("DistanceX", 1, 1, 1, 2, 0.7))
sketch6.addConstraint(Sketcher.Constraint("DistanceY", 4, 2, -1, 1, 6.0))
sketch6.addConstraint(Sketcher.Constraint("DistanceY", 0, 2, -1, 1, 3.46))
sketch6.addConstraint(Sketcher.Constraint("DistanceY", 8, 2, -1, 1, 0.92))
sketch6.addConstraint(Sketcher.Constraint("DistanceX", 18, 2, 24, 2, 27.39))
sketch6.addConstraint(Sketcher.Constraint("DistanceY", 24, 2, 28, 2, 2.54))
sketch6.addConstraint(Sketcher.Constraint("DistanceX", 0, 2, -1, 1, 19.395))
sketch6.addConstraint(Sketcher.Constraint("DistanceY", -1, 1, 24, 2, 2.595))
pad6 = body2.newObject("PartDesign::Pad", "Pad005")
pad6.Profile = sketch6
pad6.Length = 8.36
pad6.Reversed = True

doc.recompute()
